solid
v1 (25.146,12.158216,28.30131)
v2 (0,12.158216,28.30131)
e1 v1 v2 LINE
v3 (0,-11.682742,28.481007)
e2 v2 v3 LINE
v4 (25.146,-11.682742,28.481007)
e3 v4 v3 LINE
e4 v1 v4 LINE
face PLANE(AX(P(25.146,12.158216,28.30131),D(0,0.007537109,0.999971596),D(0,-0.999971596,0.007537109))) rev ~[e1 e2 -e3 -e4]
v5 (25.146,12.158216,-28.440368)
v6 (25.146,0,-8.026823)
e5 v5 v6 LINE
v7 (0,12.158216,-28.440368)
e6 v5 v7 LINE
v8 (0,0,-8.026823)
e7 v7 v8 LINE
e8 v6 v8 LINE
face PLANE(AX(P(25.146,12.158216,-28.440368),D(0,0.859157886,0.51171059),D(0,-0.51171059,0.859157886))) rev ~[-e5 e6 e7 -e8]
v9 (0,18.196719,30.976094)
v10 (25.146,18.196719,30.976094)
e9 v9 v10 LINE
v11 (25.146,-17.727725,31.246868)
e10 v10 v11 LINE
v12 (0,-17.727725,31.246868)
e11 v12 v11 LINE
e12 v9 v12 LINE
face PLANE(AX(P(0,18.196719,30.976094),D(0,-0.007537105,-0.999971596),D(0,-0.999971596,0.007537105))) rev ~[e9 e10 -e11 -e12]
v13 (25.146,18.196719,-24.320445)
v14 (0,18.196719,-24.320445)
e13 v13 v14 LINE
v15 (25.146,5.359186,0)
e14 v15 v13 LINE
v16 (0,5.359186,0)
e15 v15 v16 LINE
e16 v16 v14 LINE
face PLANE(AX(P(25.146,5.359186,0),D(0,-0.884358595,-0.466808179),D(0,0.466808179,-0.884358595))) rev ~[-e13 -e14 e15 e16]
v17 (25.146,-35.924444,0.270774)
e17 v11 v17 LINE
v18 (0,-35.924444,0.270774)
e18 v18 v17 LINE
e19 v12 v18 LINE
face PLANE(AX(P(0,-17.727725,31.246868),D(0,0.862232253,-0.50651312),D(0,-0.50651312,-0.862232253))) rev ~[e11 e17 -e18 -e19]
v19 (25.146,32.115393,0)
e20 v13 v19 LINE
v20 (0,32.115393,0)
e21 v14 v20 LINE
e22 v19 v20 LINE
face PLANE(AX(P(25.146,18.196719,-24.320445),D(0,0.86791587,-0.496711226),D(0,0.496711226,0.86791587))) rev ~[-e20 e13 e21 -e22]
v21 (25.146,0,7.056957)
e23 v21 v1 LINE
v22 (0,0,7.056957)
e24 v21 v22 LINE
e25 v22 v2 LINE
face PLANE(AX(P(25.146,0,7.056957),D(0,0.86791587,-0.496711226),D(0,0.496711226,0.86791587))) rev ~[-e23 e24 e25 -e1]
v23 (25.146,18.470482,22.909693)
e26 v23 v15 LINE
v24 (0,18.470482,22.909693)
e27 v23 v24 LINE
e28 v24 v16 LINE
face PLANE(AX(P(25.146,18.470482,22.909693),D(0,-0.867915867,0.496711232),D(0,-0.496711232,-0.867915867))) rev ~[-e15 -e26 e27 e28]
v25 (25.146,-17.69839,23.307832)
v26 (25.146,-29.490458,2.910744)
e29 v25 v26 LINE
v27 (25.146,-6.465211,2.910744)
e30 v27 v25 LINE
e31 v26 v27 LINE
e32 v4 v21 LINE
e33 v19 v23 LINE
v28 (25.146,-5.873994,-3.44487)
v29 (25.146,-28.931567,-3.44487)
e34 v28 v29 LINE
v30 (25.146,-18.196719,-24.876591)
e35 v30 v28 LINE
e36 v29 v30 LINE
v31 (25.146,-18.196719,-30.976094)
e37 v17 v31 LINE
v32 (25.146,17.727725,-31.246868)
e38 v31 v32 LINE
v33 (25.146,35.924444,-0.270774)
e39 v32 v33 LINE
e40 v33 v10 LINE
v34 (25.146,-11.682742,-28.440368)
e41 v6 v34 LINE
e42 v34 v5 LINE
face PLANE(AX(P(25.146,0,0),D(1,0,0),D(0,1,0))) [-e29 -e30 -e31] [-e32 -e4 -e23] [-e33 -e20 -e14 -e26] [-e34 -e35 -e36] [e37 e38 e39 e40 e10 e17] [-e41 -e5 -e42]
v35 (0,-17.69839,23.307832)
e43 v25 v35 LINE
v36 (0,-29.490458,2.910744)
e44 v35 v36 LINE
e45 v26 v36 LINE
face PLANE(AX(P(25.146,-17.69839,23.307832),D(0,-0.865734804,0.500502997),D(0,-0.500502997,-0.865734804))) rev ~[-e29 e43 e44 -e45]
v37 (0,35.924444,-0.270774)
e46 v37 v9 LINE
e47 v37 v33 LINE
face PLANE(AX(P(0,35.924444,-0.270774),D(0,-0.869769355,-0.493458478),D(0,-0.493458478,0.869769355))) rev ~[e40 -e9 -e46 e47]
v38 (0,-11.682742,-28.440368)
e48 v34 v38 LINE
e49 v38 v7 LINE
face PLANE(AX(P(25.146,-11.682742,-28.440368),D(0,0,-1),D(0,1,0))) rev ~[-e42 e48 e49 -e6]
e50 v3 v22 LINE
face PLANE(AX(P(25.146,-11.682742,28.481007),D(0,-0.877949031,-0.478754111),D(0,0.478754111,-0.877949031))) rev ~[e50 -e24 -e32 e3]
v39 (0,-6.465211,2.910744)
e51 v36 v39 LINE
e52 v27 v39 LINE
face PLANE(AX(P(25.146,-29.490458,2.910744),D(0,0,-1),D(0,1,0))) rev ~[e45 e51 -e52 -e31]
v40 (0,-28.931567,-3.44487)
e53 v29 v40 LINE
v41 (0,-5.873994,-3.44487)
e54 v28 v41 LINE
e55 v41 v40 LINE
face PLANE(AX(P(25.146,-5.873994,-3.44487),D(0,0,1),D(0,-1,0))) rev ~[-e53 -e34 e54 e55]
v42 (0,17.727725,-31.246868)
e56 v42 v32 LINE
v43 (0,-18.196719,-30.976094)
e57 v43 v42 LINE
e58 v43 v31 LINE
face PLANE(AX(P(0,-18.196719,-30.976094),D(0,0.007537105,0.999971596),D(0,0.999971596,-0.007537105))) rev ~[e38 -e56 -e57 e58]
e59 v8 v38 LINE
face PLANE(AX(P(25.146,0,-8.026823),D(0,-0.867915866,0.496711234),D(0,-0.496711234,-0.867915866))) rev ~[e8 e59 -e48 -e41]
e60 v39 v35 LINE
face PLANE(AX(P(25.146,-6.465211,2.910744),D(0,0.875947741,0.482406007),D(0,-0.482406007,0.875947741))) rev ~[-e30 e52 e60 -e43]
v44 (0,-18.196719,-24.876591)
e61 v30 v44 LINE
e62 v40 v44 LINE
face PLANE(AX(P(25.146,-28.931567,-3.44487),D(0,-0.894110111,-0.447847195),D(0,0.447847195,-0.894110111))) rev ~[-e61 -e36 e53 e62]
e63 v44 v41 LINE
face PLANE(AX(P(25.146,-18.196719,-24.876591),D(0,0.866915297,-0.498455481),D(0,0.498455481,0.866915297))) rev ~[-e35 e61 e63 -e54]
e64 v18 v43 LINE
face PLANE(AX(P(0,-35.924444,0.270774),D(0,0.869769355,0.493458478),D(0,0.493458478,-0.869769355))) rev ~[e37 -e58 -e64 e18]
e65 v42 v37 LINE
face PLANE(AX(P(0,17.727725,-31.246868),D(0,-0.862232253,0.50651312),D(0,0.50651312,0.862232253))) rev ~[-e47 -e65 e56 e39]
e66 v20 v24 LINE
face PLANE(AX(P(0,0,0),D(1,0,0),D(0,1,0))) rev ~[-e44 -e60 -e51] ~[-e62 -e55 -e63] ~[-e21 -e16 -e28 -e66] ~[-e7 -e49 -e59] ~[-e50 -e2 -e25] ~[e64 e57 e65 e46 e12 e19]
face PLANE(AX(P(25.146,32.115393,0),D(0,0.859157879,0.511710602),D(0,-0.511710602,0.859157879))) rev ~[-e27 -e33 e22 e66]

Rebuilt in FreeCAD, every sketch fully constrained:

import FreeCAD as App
import Part
import Sketcher
from FreeCAD import Vector
Q = App.Units.Quantity

doc = App.newDocument("Part")
body = doc.addObject("PartDesign::Body", "Body")

# Sketch on YZ plane
sketch1 = body.newObject("Sketcher::SketchObject", "Sketch")
sketch1.AttachmentSupport = (doc.getObject("YZ_Plane"), [""])
sketch1.MapMode = "FlatFace"
sketch1.addGeometry([
    Part.LineSegment(Vector(-18.196719, -30.976094, 0), Vector(17.727725, -31.246868, 0)),  # 0
    Part.LineSegment(Vector(17.727725, -31.246868, 0), Vector(35.924444, -0.270774, 0)),  # 1
    Part.LineSegment(Vector(35.924444, -0.270774, 0), Vector(18.196719, 30.976094, 0)),  # 2
    Part.LineSegment(Vector(18.196719, 30.976094, 0), Vector(-17.727725, 31.246868, 0)),  # 3
    Part.LineSegment(Vector(-17.727725, 31.246868, 0), Vector(-35.924444, 0.270774, 0)),  # 4
    Part.LineSegment(Vector(-35.924444, 0.270774, 0), Vector(-18.196719, -30.976094, 0)),  # 5
], False)
sketch1.addConstraint([
    Sketcher.Constraint("Coincident", 0, 2, 1, 1),
    Sketcher.Constraint("Coincident", 1, 2, 2, 1),
    Sketcher.Constraint("Coincident", 2, 2, 3, 1),
    Sketcher.Constraint("Coincident", 3, 2, 4, 1),
    Sketcher.Constraint("Coincident", 4, 2, 5, 1),
    Sketcher.Constraint("Coincident", 5, 2, 0, 1),
    Sketcher.Constraint("Symmetric", 0, 2, 3, 2, -1, 1),
    Sketcher.Constraint("Symmetric", 1, 2, 4, 2, -1, 1),
    Sketcher.Constraint("Symmetric", 2, 2, 5, 2, -1, 1),
    Sketcher.Constraint("Equal", 0, 1),
    Sketcher.Constraint("Equal", 1, 2),
    Sketcher.Constraint("DistanceX", -1, 1, 2, 2, Q("18.196719 mm")),
    Sketcher.Constraint("DistanceX", 0, 2, 1, 2, Q("18.196719 mm")),
    Sketcher.Constraint("DistanceY", 0, 2, 2, 2, Q("62.222962 mm")),
    Sketcher.Constraint("DistanceX", 3, 2, 1, 2, Q("53.652169 mm")),
])
pad1 = body.newObject("PartDesign::Pad", "Pad")
pad1.Profile = sketch1
pad1.Length = Q("0.99 in")

# Sketch on YZ plane
sketch2 = body.newObject("Sketcher::SketchObject", "Sketch001")
sketch2.AttachmentSupport = (doc.getObject("YZ_Plane"), [""])
sketch2.MapMode = "FlatFace"
sketch2.AttachmentOffset = App.Placement(Vector(0, 0, 0.99 * 25.4), App.Rotation())
sketch2.addGeometry([
    Part.LineSegment(Vector(12.158216, 28.30131, 0), Vector(-11.682742, 28.481007, 0)),  # 0
    Part.LineSegment(Vector(-11.682742, 28.481007, 0), Vector(0, 7.056957, 0)),  # 1
    Part.LineSegment(Vector(0, 7.056957, 0), Vector(12.158216, 28.30131, 0)),  # 2
    Part.LineSegment(Vector(18.470482, 22.909693, 0), Vector(5.359186, 0, 0)),  # 3
    Part.LineSegment(Vector(5.359186, 0, 0), Vector(18.196719, -24.320445, 0)),  # 4
    Part.LineSegment(Vector(18.196719, -24.320445, 0), Vector(32.115393, 0, 0)),  # 5
    Part.LineSegment(Vector(32.115393, 0, 0), Vector(18.470482, 22.909693, 0)),  # 6
    Part.LineSegment(Vector(12.158216, -28.440368, 0), Vector(0, -8.026823, 0)),  # 7
    Part.LineSegment(Vector(0, -8.026823, 0), Vector(-11.682742, -28.440368, 0)),  # 8
    Part.LineSegment(Vector(-11.682742, -28.440368, 0), Vector(12.158216, -28.440368, 0)),  # 9
    Part.LineSegment(Vector(-5.873994, -3.44487, 0), Vector(-28.931567, -3.44487, 0)),  # 10
    Part.LineSegment(Vector(-28.931567, -3.44487, 0), Vector(-18.196719, -24.876591, 0)),  # 11
    Part.LineSegment(Vector(-18.196719, -24.876591, 0), Vector(-5.873994, -3.44487, 0)),  # 12
    Part.LineSegment(Vector(-6.465211, 2.910744, 0), Vector(-17.69839, 23.307832, 0)),  # 13
    Part.LineSegment(Vector(-17.69839, 23.307832, 0), Vector(-29.490458, 2.910744, 0)),  # 14
    Part.LineSegment(Vector(-29.490458, 2.910744, 0), Vector(-6.465211, 2.910744, 0)),  # 15
], False)
sketch2.addConstraint([
    Sketcher.Constraint("Coincident", 0, 2, 1, 1),
    Sketcher.Constraint("Coincident", 1, 2, 2, 1),
    Sketcher.Constraint("Coincident", 2, 2, 0, 1),
    Sketcher.Constraint("Coincident", 3, 2, 4, 1),
    Sketcher.Constraint("Coincident", 4, 2, 5, 1),
    Sketcher.Constraint("Coincident", 5, 2, 6, 1),
    Sketcher.Constraint("Coincident", 6, 2, 3, 1),
    Sketcher.Constraint("Coincident", 7, 2, 8, 1),
    Sketcher.Constraint("Coincident", 8, 2, 9, 1),
    Sketcher.Constraint("Coincident", 9, 2, 7, 1),
    Sketcher.Constraint("Coincident", 10, 2, 11, 1),
    Sketcher.Constraint("Coincident", 11, 2, 12, 1),
    Sketcher.Constraint("Coincident", 12, 2, 10, 1),
    Sketcher.Constraint("Coincident", 13, 2, 14, 1),
    Sketcher.Constraint("Coincident", 14, 2, 15, 1),
    Sketcher.Constraint("Coincident", 15, 2, 13, 1),
    Sketcher.Constraint("Horizontal", 9),
    Sketcher.Constraint("Horizontal", 10),
    Sketcher.Constraint("Horizontal", 15),
    Sketcher.Constraint("PointOnObject", 1, 2, -2),
    Sketcher.Constraint("PointOnObject", 3, 2, -1),
    Sketcher.Constraint("PointOnObject", 5, 2, -1),
    Sketcher.Constraint("PointOnObject", 7, 2, -2),
    Sketcher.Constraint("Parallel", 2, 3),
    Sketcher.Constraint("Parallel", 3, 5),
    Sketcher.Constraint("Parallel", 6, 7),
    Sketcher.Constraint("Parallel", 5, 8),
    Sketcher.Constraint("Vertical", 0, 2, 8, 2),
    Sketcher.Constraint("Vertical", 2, 2, 9, 2),
    Sketcher.Constraint("Distance", 12, Q("0.9732999 in")),
    Sketcher.Constraint("DistanceX", 9, 1, 9, 2, Q("23.840958 mm")),
    Sketcher.Constraint("DistanceY", 4, 2, 1, 2, Q("31.377402 mm")),
    Sketcher.Constraint("DistanceY", 10, 2, 13, 2, Q("26.752702 mm")),
    Sketcher.Constraint("Distance", 4, Q("27.50066 mm")),
    Sketcher.Constraint("Distance", 5, Q("28.021662 mm")),
    Sketcher.Constraint("Distance", 6, Q("26.665289 mm")),
    Sketcher.Constraint("Distance", 8, Q("23.520189 mm")),
    Sketcher.Constraint("Distance", 11, Q("23.96989 mm")),
    Sketcher.Constraint("DistanceX", 10, 2, 10, 1, Q("23.057573 mm")),
    Sketcher.Constraint("DistanceX", 15, 1, 15, 2, Q("23.025247 mm")),
    Sketcher.Constraint("DistanceX", -1, 1, 4, 2, Q("18.196719 mm")),
    Sketcher.Constraint("DistanceY", 10, 2, -1, 1, Q("3.44487 mm")),
    Sketcher.Constraint("DistanceX", 11, 2, -1, 1, Q("18.196719 mm")),
    Sketcher.Constraint("DistanceX", 13, 2, -1, 1, Q("17.69839 mm")),
    Sketcher.Constraint("DistanceX", 14, 2, -1, 1, Q("29.490458 mm")),
    Sketcher.Constraint("DistanceY", 1, 2, 0, 2, Q("21.42405 mm")),
    Sketcher.Constraint("DistanceY", 7, 2, 1, 2, Q("15.08378 mm")),
    Sketcher.Constraint("DistanceY", 14, 2, 13, 2, Q("20.397088 mm")),
])
pocket1 = body.newObject("PartDesign::Pocket", "Pocket")
pocket1.Profile = sketch2
pocket1.Type = "ThroughAll"

doc.recompute()
